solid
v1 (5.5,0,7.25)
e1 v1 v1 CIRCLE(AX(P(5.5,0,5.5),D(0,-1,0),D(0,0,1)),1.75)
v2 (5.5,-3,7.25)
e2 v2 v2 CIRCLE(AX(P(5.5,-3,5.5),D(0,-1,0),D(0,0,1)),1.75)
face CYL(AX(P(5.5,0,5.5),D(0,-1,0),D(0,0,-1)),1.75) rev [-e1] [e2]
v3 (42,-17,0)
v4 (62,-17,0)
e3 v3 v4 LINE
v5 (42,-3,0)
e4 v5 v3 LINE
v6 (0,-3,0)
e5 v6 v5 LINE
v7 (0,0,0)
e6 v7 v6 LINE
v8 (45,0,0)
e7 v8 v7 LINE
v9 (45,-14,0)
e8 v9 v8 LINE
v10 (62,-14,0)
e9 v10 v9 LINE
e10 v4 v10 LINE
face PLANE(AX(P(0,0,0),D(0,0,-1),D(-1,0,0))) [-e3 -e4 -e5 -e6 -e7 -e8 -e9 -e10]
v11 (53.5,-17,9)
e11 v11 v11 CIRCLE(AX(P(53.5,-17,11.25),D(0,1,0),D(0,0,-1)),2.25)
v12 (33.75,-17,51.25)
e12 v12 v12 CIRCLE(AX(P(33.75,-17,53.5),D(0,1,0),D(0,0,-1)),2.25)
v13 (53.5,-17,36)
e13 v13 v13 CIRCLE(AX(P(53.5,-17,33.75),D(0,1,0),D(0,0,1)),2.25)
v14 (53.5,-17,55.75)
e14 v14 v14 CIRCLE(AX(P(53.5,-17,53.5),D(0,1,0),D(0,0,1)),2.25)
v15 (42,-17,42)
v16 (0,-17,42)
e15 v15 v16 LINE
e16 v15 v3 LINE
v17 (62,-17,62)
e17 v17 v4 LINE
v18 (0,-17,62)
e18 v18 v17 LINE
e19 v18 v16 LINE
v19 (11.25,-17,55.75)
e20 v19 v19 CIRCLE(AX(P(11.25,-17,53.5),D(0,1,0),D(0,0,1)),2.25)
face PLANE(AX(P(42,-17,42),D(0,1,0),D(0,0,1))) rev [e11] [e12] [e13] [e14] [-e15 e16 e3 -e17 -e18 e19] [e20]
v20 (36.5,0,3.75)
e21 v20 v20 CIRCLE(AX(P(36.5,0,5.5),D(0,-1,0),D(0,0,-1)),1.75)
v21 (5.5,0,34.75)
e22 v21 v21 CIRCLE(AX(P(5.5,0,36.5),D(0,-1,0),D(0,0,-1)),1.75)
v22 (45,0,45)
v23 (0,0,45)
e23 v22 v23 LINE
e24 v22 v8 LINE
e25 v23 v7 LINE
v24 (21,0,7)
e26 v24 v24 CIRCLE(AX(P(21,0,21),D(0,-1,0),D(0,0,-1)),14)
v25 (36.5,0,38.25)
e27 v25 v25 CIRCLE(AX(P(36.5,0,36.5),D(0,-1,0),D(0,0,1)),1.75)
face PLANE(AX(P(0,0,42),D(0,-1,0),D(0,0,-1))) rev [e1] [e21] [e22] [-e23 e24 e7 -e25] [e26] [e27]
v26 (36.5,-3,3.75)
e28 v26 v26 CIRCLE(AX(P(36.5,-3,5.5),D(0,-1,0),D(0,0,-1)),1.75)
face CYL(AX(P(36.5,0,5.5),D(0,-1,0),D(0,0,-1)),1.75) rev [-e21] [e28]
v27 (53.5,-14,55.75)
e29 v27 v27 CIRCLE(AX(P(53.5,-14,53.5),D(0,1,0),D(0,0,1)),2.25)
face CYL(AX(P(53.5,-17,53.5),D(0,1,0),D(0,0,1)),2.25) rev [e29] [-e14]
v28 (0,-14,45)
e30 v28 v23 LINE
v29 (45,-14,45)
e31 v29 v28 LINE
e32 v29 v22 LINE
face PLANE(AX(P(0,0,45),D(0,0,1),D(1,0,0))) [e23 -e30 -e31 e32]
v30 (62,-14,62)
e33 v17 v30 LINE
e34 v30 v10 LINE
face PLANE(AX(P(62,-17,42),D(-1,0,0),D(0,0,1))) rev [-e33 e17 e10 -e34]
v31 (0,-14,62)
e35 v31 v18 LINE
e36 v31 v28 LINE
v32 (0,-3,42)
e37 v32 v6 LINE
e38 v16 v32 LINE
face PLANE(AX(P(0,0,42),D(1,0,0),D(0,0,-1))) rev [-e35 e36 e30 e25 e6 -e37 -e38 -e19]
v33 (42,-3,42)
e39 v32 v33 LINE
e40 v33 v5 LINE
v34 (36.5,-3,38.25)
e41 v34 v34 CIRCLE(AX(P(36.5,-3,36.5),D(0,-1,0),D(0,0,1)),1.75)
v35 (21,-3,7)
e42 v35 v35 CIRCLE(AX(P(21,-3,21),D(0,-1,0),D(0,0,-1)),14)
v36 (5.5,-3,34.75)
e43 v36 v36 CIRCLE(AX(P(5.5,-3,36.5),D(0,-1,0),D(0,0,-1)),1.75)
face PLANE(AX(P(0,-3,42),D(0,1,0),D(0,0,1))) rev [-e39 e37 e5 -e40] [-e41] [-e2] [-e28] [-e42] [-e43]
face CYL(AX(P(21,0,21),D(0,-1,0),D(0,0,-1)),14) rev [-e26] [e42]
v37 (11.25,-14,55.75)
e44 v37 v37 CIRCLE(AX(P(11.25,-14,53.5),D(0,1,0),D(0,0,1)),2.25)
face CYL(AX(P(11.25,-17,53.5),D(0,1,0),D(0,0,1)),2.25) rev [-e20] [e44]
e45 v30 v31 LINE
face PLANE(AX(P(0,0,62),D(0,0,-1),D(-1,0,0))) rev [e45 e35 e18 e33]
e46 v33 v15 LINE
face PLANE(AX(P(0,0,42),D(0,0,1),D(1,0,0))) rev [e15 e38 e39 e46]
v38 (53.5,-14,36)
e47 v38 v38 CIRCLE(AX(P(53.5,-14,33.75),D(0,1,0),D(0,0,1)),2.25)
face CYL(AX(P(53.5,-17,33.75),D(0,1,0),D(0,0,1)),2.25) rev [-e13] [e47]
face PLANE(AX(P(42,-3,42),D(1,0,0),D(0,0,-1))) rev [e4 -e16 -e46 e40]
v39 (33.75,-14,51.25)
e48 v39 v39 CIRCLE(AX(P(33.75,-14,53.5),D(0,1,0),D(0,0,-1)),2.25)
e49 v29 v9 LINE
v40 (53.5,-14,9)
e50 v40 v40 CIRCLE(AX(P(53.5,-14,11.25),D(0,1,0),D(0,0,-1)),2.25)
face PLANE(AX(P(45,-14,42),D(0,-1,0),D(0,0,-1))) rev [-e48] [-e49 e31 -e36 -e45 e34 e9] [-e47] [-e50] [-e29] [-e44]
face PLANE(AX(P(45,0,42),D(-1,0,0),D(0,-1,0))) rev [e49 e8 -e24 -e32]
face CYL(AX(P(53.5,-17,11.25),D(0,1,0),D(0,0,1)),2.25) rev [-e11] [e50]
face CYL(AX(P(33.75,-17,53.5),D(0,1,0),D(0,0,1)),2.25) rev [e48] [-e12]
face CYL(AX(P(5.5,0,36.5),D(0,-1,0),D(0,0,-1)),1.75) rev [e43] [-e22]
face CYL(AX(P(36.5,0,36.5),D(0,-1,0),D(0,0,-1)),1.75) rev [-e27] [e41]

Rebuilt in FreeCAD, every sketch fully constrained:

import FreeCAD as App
import Part
import Sketcher

doc = App.newDocument("Part")
body = doc.addObject("PartDesign::Body", "Body")

# Sketch on XY plane
sketch1 = body.newObject("Sketcher::SketchObject", "Sketch")
sketch1.AttachmentSupport = (doc.getObject("XY_Plane"), [""])
sketch1.MapMode = "FlatFace"
sketch1.addGeometry([
    Part.LineSegment(App.Vector(42, -17, 0), App.Vector(62, -17, 0)),  # 0
    Part.LineSegment(App.Vector(62, -17, 0), App.Vector(62, -14, 0)),  # 1
    Part.LineSegment(App.Vector(62, -14, 0), App.Vector(45, -14, 0)),  # 2
    Part.LineSegment(App.Vector(45, -14, 0), App.Vector(45, 0, 0)),  # 3
    Part.LineSegment(App.Vector(45, 0, 0), App.Vector(0, 0, 0)),  # 4
    Part.LineSegment(App.Vector(0, 0, 0), App.Vector(0, -3, 0)),  # 5
    Part.LineSegment(App.Vector(0, -3, 0), App.Vector(42, -3, 0)),  # 6
    Part.LineSegment(App.Vector(42, -3, 0), App.Vector(42, -17, 0)),  # 7
], False)
sketch1.addConstraint([
    Sketcher.Constraint("Coincident", 0, 2, 1, 1),
    Sketcher.Constraint("Coincident", 1, 2, 2, 1),
    Sketcher.Constraint("Coincident", 2, 2, 3, 1),
    Sketcher.Constraint("Coincident", 3, 2, 4, 1),
    Sketcher.Constraint("Coincident", 4, 2, 5, 1),
    Sketcher.Constraint("Coincident", 5, 2, 6, 1),
    Sketcher.Constraint("Coincident", 6, 2, 7, 1),
    Sketcher.Constraint("Coincident", 7, 2, 0, 1),
    Sketcher.Constraint("Horizontal", 0),
    Sketcher.Constraint("Vertical", 1),
    Sketcher.Constraint("Horizontal", 2),
    Sketcher.Constraint("Vertical", 3),
    Sketcher.Constraint("Horizontal", 4),
    Sketcher.Constraint("Vertical", 5),
    Sketcher.Constraint("Horizontal", 6),
    Sketcher.Constraint("Vertical", 7),
    Sketcher.Constraint("Coincident", 4, 2, -1, 1),
    Sketcher.Constraint("Equal", 1, 5),
    Sketcher.Constraint("DistanceX", 0, 1, 0, 2, 20.0),
    Sketcher.Constraint("DistanceX", 2, 2, 2, 1, 17.0),
    Sketcher.Constraint("DistanceX", 4, 2, 4, 1, 45.0),
    Sketcher.Constraint("DistanceY", 1, 1, 1, 2, 3.0),
    Sketcher.Constraint("DistanceY", 3, 1, 3, 2, 14.0),
])
pad1 = body.newObject("PartDesign::Pad", "Pad")
pad1.Profile = sketch1
pad1.Length = 42

# Sketch on XY plane
sketch2 = body.newObject("Sketcher::SketchObject", "Sketch001")
sketch2.AttachmentSupport = (doc.getObject("XY_Plane"), [""])
sketch2.MapMode = "FlatFace"
sketch2.AttachmentOffset = App.Placement(App.Vector(0, 0, 42), App.Rotation())
sketch2.addGeometry([
    Part.LineSegment(App.Vector(0, -17, 0), App.Vector(62, -17, 0)),  # 0
    Part.LineSegment(App.Vector(62, -17, 0), App.Vector(62, -14, 0)),  # 1
    Part.LineSegment(App.Vector(62, -14, 0), App.Vector(45, -14, 0)),  # 2
    Part.LineSegment(App.Vector(45, -14, 0), App.Vector(45, 0, 0)),  # 3
    Part.LineSegment(App.Vector(45, 0, 0), App.Vector(0, 0, 0)),  # 4
    Part.LineSegment(App.Vector(0, 0, 0), App.Vector(0, -17, 0)),  # 5
], False)
sketch2.addConstraint([
    Sketcher.Constraint("Coincident", 0, 2, 1, 1),
    Sketcher.Constraint("Coincident", 1, 2, 2, 1),
    Sketcher.Constraint("Coincident", 2, 2, 3, 1),
    Sketcher.Constraint("Coincident", 3, 2, 4, 1),
    Sketcher.Constraint("Coincident", 4, 2, 5, 1),
    Sketcher.Constraint("Coincident", 5, 2, 0, 1),
    Sketcher.Constraint("Horizontal", 0),
    Sketcher.Constraint("Vertical", 1),
    Sketcher.Constraint("Horizontal", 2),
    Sketcher.Constraint("Vertical", 3),
    Sketcher.Constraint("Horizontal", 4),
    Sketcher.Constraint("Vertical", 5),
    Sketcher.Constraint("Coincident", 4, 2, -1, 1),
    Sketcher.Constraint("Equal", 2, 5),
    Sketcher.Constraint("DistanceX", 0, 1, 0, 2, 62.0),
    Sketcher.Constraint("DistanceX", 2, 2, 2, 1, 17.0),
    Sketcher.Constraint("DistanceY", 1, 1, 1, 2, 3.0),
])
pad2 = body.newObject("PartDesign::Pad", "Pad001")
pad2.Profile = sketch2
pad2.Length = 3

# Sketch on XY plane
sketch3 = body.newObject("Sketcher::SketchObject", "Sketch002")
sketch3.AttachmentSupport = (doc.getObject("XY_Plane"), [""])
sketch3.MapMode = "FlatFace"
sketch3.AttachmentOffset = App.Placement(App.Vector(0, 0, 45), App.Rotation())
sketch3.addGeometry([
    Part.LineSegment(App.Vector(0, -14, 0), App.Vector(0, -17, 0)),
    Part.LineSegment(App.Vector(0, -17, 0), App.Vector(62, -17, 0)),
    Part.LineSegment(App.Vector(62, -17, 0), App.Vector(62, -14, 0)),
    Part.LineSegment(App.Vector(62, -14, 0), App.Vector(0, -14, 0)),
], False)
sketch3.addConstraint([
    Sketcher.Constraint("Coincident", 0, 2, 1, 1),
    Sketcher.Constraint("Coincident", 1, 2, 2, 1),
    Sketcher.Constraint("Coincident", 2, 2, 3, 1),
    Sketcher.Constraint("Coincident", 3, 2, 0, 1),
    Sketcher.Constraint("Vertical", 0),
    Sketcher.Constraint("Horizontal", 1),
    Sketcher.Constraint("Vertical", 2),
    Sketcher.Constraint("Horizontal", 3),
    Sketcher.Constraint("PointOnObject", 0, 2, -2),
    Sketcher.Constraint("DistanceX", 1, 1, 1, 2, 62.0),
    Sketcher.Constraint("DistanceY", 0, 2, 0, 1, 3.0),
    Sketcher.Constraint("DistanceY", 0, 2, -1, 1, 17.0),
])
pad3 = body.newObject("PartDesign::Pad", "Pad002")
pad3.Profile = sketch3
pad3.Length = 17

# Sketch on XZ plane
sketch4 = body.newObject("Sketcher::SketchObject", "Sketch003")
sketch4.AttachmentSupport = (doc.getObject("XZ_Plane"), [""])
sketch4.MapMode = "FlatFace"
sketch4.AttachmentOffset = App.Placement(App.Vector(0, 0, 3), App.Rotation())
sketch4.addGeometry([
    Part.Circle(App.Vector(5.5, 36.5, 0), App.Vector(0, 0, 1), 1.8),  # 0
    Part.Circle(App.Vector(36.5, 36.5, 0), App.Vector(0, 0, 1), 1.8),  # 1
    Part.Circle(App.Vector(36.5, 5.5, 0), App.Vector(0, 0, 1), 1.8),  # 2
    Part.Circle(App.Vector(5.5, 5.5, 0), App.Vector(0, 0, 1), 1.8),  # 3
    Part.Circle(App.Vector(21, 21, 0), App.Vector(0, 0, 1), 14),  # 4
], False)
sketch4.addConstraint([
    Sketcher.Constraint("Equal", 0, 1),
    Sketcher.Constraint("Equal", 1, 2),
    Sketcher.Constraint("Equal", 2, 3),
    Sketcher.Constraint("Horizontal", 0, 3, 1, 3),
    Sketcher.Constraint("Horizontal", 2, 3, 3, 3),
    Sketcher.Constraint("Vertical", 1, 3, 2, 3),
    Sketcher.Constraint("Vertical", 0, 3, 3, 3),
    Sketcher.Constraint("Diameter", 4, 28.0),
    Sketcher.Constraint("Diameter", 0, 3.5),
    Sketcher.Constraint("DistanceX", -1, 1, 4, 3, 21.0),
    Sketcher.Constraint("DistanceY", -1, 1, 4, 3, 21.0),
    Sketcher.Constraint("DistanceX", 0, 3, 1, 3, 31.0),
    Sketcher.Constraint("DistanceY", 2, 3, 1, 3, 31.0),
    Sketcher.Constraint("DistanceX", -1, 1, 0, 3, 5.5),
    Sketcher.Constraint("DistanceY", -1, 1, 0, 3, 36.5),
])
pocket1 = body.newObject("PartDesign::Pocket", "Pocket")
pocket1.Profile = sketch4
pocket1.Type = "ThroughAll"

# Sketch on XZ plane
sketch5 = body.newObject("Sketcher::SketchObject", "Sketch004")
sketch5.AttachmentSupport = (doc.getObject("XZ_Plane"), [""])
sketch5.MapMode = "FlatFace"
sketch5.AttachmentOffset = App.Placement(App.Vector(0, 0, 14), App.Rotation())
sketch5.addGeometry([
    Part.Circle(App.Vector(11.2, 53.5, 0), App.Vector(0, 0, 1), 2.2),  # 0
    Part.Circle(App.Vector(33.8, 53.5, 0), App.Vector(0, 0, 1), 2.2),  # 1
    Part.Circle(App.Vector(53.5, 53.5, 0), App.Vector(0, 0, 1), 2.2),  # 2
    Part.Circle(App.Vector(53.5, 11.2, 0), App.Vector(0, 0, 1), 2.2),  # 3
    Part.Circle(App.Vector(53.5, 33.8, 0), App.Vector(0, 0, 1), 2.2),  # 4
], False)
sketch5.addConstraint([
    Sketcher.Constraint("Equal", 0, 1),
    Sketcher.Constraint("Equal", 1, 2),
    Sketcher.Constraint("Equal", 2, 3),
    Sketcher.Constraint("Equal", 3, 4),
    Sketcher.Constraint("Horizontal", 0, 3, 1, 3),
    Sketcher.Constraint("Horizontal", 1, 3, 2, 3),
    Sketcher.Constraint("Vertical", 2, 3, 3, 3),
    Sketcher.Constraint("Vertical", 3, 3, 4, 3),
    Sketcher.Constraint("Diameter", 0, 4.5),
    Sketcher.Constraint("DistanceY", -1, 1, 0, 3, 53.5),
    Sketcher.Constraint("DistanceX", -1, 1, 2, 3, 53.5),
    Sketcher.Constraint("DistanceX", 0, 3, 1, 3, 22.5),
    Sketcher.Constraint("DistanceY", 3, 3, 4, 3, 22.5),
    Sketcher.Constraint("DistanceX", -1, 1, 0, 3, 11.25),
    Sketcher.Constraint("DistanceY", -1, 1, 3, 3, 11.25),
])
pocket2 = body.newObject("PartDesign::Pocket", "Pocket001")
pocket2.Profile = sketch5
pocket2.Type = "ThroughAll"
pocket2.Reversed = True

doc.recompute()
